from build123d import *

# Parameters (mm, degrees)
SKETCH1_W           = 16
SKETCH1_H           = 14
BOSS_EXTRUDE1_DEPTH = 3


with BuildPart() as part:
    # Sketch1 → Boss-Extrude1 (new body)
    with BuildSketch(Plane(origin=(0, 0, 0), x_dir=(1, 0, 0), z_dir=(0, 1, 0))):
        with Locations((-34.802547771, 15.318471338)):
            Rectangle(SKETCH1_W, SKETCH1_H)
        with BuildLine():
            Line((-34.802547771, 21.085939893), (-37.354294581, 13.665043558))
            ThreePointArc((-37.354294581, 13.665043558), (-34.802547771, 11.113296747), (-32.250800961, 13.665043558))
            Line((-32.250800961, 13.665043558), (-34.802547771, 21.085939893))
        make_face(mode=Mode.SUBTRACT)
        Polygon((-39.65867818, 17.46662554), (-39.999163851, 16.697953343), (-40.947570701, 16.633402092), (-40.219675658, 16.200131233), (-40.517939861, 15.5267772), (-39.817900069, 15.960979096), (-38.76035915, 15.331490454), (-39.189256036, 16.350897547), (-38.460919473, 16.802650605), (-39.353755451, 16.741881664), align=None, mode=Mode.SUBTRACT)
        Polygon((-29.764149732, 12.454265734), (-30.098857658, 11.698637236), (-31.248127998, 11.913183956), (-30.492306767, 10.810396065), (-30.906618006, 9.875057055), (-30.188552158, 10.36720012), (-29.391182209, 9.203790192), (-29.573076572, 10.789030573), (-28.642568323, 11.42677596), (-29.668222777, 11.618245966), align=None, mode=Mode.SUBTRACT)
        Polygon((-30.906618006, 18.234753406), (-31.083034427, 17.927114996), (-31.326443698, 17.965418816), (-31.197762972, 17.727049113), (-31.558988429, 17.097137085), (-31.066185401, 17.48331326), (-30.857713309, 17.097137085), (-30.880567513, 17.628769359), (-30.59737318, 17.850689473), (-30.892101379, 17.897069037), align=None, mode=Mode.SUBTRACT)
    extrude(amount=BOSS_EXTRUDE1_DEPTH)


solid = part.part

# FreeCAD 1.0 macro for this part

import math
import FreeCAD as App
import Part
import Sketcher

V = App.Vector

doc = App.newDocument("Part")
body = doc.addObject("PartDesign::Body", "Body")

sketch1 = body.newObject("Sketcher::SketchObject", "Sketch")
sketch1.AttachmentSupport = (doc.getObject("XZ_Plane"), [""])
sketch1.MapMode = "FlatFace"
sketch1.addGeometry(Part.LineSegment(V(-42.8, -22.32, 0), V(-42.8, -8.32, 0)), False)
sketch1.addGeometry(Part.LineSegment(V(-42.8, -8.32, 0), V(-26.8, -8.32, 0)), False)
sketch1.addGeometry(Part.LineSegment(V(-26.8, -8.32, 0), V(-26.8, -22.32, 0)), False)
sketch1.addGeometry(Part.LineSegment(V(-26.8, -22.32, 0), V(-42.8, -22.32, 0)), False)
sketch1.addGeometry(Part.LineSegment(V(-30.1, -11.7, 0), V(-29.76, -12.45, 0)), False)
sketch1.addGeometry(Part.LineSegment(V(-29.76, -12.45, 0), V(-29.67, -11.62, 0)), False)
sketch1.addGeometry(Part.LineSegment(V(-29.67, -11.62, 0), V(-28.64, -11.43, 0)), False)
sketch1.addGeometry(Part.LineSegment(V(-28.64, -11.43, 0), V(-29.57, -10.79, 0)), False)
sketch1.addGeometry(Part.LineSegment(V(-29.57, -10.79, 0), V(-29.39, -9.2, 0)), False)
sketch1.addGeometry(Part.LineSegment(V(-29.39, -9.2, 0), V(-30.19, -10.37, 0)), False)
sketch1.addGeometry(Part.LineSegment(V(-30.19, -10.37, 0), V(-30.91, -9.88, 0)), False)
sketch1.addGeometry(Part.LineSegment(V(-30.91, -9.88, 0), V(-30.49, -10.81, 0)), False)
sketch1.addGeometry(Part.LineSegment(V(-30.49, -10.81, 0), V(-31.25, -11.91, 0)), False)
sketch1.addGeometry(Part.LineSegment(V(-31.25, -11.91, 0), V(-30.1, -11.7, 0)), False)
sketch1.addGeometry(Part.LineSegment(V(-40, -16.7, 0), V(-39.66, -17.47, 0)), False)
sketch1.addGeometry(Part.LineSegment(V(-39.66, -17.47, 0), V(-39.35, -16.74, 0)), False)
sketch1.addGeometry(Part.LineSegment(V(-39.35, -16.74, 0), V(-38.46, -16.8, 0)), False)
sketch1.addGeometry(Part.LineSegment(V(-38.46, -16.8, 0), V(-39.19, -16.35, 0)), False)
sketch1.addGeometry(Part.LineSegment(V(-39.19, -16.35, 0), V(-38.76, -15.33, 0)), False)
sketch1.addGeometry(Part.LineSegment(V(-38.76, -15.33, 0), V(-39.82, -15.96, 0)), False)
sketch1.addGeometry(Part.LineSegment(V(-39.82, -15.96, 0), V(-40.52, -15.53, 0)), False)
sketch1.addGeometry(Part.LineSegment(V(-40.52, -15.53, 0), V(-40.22, -16.2, 0)), False)
sketch1.addGeometry(Part.LineSegment(V(-40.22, -16.2, 0), V(-40.95, -16.63, 0)), False)
sketch1.addGeometry(Part.LineSegment(V(-40.95, -16.63, 0), V(-40, -16.7, 0)), False)
sketch1.addGeometry(Part.LineSegment(V(-37.35, -13.67, 0), V(-34.8, -21.09, 0)), False)
sketch1.addGeometry(Part.LineSegment(V(-34.8, -21.09, 0), V(-32.25, -13.67, 0)), False)
sketch1.addGeometry(Part.ArcOfCircle(Part.Circle(V(-34.8, -13.67, 0), V(0, 0, 1), 2.55), math.radians(0), math.radians(180)), False)
sketch1.addGeometry(Part.LineSegment(V(-31.08, -17.93, 0), V(-30.91, -18.23, 0)), False)
sketch1.addGeometry(Part.LineSegment(V(-30.91, -18.23, 0), V(-30.89, -17.9, 0)), False)
sketch1.addGeometry(Part.LineSegment(V(-30.89, -17.9, 0), V(-30.6, -17.85, 0)), False)
sketch1.addGeometry(Part.LineSegment(V(-30.6, -17.85, 0), V(-30.88, -17.63, 0)), False)
sketch1.addGeometry(Part.LineSegment(V(-30.88, -17.63, 0), V(-30.86, -17.1, 0)), False)
sketch1.addGeometry(Part.LineSegment(V(-30.86, -17.1, 0), V(-31.07, -17.48, 0)), False)
sketch1.addGeometry(Part.LineSegment(V(-31.07, -17.48, 0), V(-31.56, -17.1, 0)), False)
sketch1.addGeometry(Part.LineSegment(V(-31.56, -17.1, 0), V(-31.2, -17.73, 0)), False)
sketch1.addGeometry(Part.LineSegment(V(-31.2, -17.73, 0), V(-31.33, -17.97, 0)), False)
sketch1.addGeometry(Part.LineSegment(V(-31.33, -17.97, 0), V(-31.08, -17.93, 0)), False)
sketch1.addConstraint(Sketcher.Constraint("Coincident", 0, 2, 1, 1))
sketch1.addConstraint(Sketcher.Constraint("Coincident", 1, 2, 2, 1))
sketch1.addConstraint(Sketcher.Constraint("Coincident", 2, 2, 3, 1))
sketch1.addConstraint(Sketcher.Constraint("Coincident", 3, 2, 0, 1))
sketch1.addConstraint(Sketcher.Constraint("Coincident", 4, 2, 5, 1))
sketch1.addConstraint(Sketcher.Constraint("Coincident", 5, 2, 6, 1))
sketch1.addConstraint(Sketcher.Constraint("Coincident", 6, 2, 7, 1))
sketch1.addConstraint(Sketcher.Constraint("Coincident", 7, 2, 8, 1))
sketch1.addConstraint(Sketcher.Constraint("Coincident", 8, 2, 9, 1))
sketch1.addConstraint(Sketcher.Constraint("Coincident", 9, 2, 10, 1))
sketch1.addConstraint(Sketcher.Constraint("Coincident", 10, 2, 11, 1))
sketch1.addConstraint(Sketcher.Constraint("Coincident", 11, 2, 12, 1))
sketch1.addConstraint(Sketcher.Constraint("Coincident", 12, 2, 13, 1))
sketch1.addConstraint(Sketcher.Constraint("Coincident", 13, 2, 4, 1))
sketch1.addConstraint(Sketcher.Constraint("Coincident", 14, 2, 15, 1))
sketch1.addConstraint(Sketcher.Constraint("Coincident", 15, 2, 16, 1))
sketch1.addConstraint(Sketcher.Constraint("Coincident", 16, 2, 17, 1))
sketch1.addConstraint(Sketcher.Constraint("Coincident", 17, 2, 18, 1))
sketch1.addConstraint(Sketcher.Constraint("Coincident", 18, 2, 19, 1))
sketch1.addConstraint(Sketcher.Constraint("Coincident", 19, 2, 20, 1))
sketch1.addConstraint(Sketcher.Constraint("Coincident", 20, 2, 21, 1))
sketch1.addConstraint(Sketcher.Constraint("Coincident", 21, 2, 22, 1))
sketch1.addConstraint(Sketcher.Constraint("Coincident", 22, 2, 23, 1))
sketch1.addConstraint(Sketcher.Constraint("Coincident", 23, 2, 14, 1))
sketch1.addConstraint(Sketcher.Constraint("Coincident", 24, 2, 25, 1))
sketch1.addConstraint(Sketcher.Constraint("Coincident", 25, 2, 26, 1))
sketch1.addConstraint(Sketcher.Constraint("Coincident", 26, 2, 24, 1))
sketch1.addConstraint(Sketcher.Constraint("Coincident", 27, 2, 28, 1))
sketch1.addConstraint(Sketcher.Constraint("Coincident", 28, 2, 29, 1))
sketch1.addConstraint(Sketcher.Constraint("Coincident", 29, 2, 30, 1))
sketch1.addConstraint(Sketcher.Constraint("Coincident", 30, 2, 31, 1))
sketch1.addConstraint(Sketcher.Constraint("Coincident", 31, 2, 32, 1))
sketch1.addConstraint(Sketcher.Constraint("Coincident", 32, 2, 33, 1))
sketch1.addConstraint(Sketcher.Constraint("Coincident", 33, 2, 34, 1))
sketch1.addConstraint(Sketcher.Constraint("Coincident", 34, 2, 35, 1))
sketch1.addConstraint(Sketcher.Constraint("Coincident", 35, 2, 36, 1))
sketch1.addConstraint(Sketcher.Constraint("Coincident", 36, 2, 27, 1))
sketch1.addConstraint(Sketcher.Constraint("Vertical", 0))
sketch1.addConstraint(Sketcher.Constraint("Horizontal", 1))
sketch1.addConstraint(Sketcher.Constraint("Vertical", 2))
sketch1.addConstraint(Sketcher.Constraint("Horizontal", 3))
sketch1.addConstraint(Sketcher.Constraint("Parallel", 5, 8))
sketch1.addConstraint(Sketcher.Constraint("Perpendicular", 7, 9))
sketch1.addConstraint(Sketcher.Constraint("Perpendicular", 9, 10))
sketch1.addConstraint(Sketcher.Constraint("Parallel", 4, 11))
sketch1.addConstraint(Sketcher.Constraint("Perpendicular", 10, 12))
sketch1.addConstraint(Sketcher.Constraint("Parallel", 6, 13))
sketch1.addConstraint(Sketcher.Constraint("Parallel", 11, 14))
sketch1.addConstraint(Sketcher.Constraint("Parallel", 15, 18))
sketch1.addConstraint(Sketcher.Constraint("Parallel", 17, 20))
sketch1.addConstraint(Sketcher.Constraint("Parallel", 14, 21))
sketch1.addConstraint(Sketcher.Constraint("Parallel", 19, 22))
sketch1.addConstraint(Sketcher.Constraint("Parallel", 16, 23))
sketch1.addConstraint(Sketcher.Constraint("Parallel", 28, 31))
sketch1.addConstraint(Sketcher.Constraint("Parallel", 30, 33))
sketch1.addConstraint(Sketcher.Constraint("Parallel", 27, 34))
sketch1.addConstraint(Sketcher.Constraint("Parallel", 32, 35))
sketch1.addConstraint(Sketcher.Constraint("Parallel", 29, 36))
sketch1.addConstraint(Sketcher.Constraint("Horizontal", 26, 3, 25, 2))
sketch1.addConstraint(Sketcher.Constraint("Horizontal", 25, 2, 26, 2))
sketch1.addConstraint(Sketcher.Constraint("Horizontal", 31, 2, 33, 2))
sketch1.addConstraint(Sketcher.Constraint("Vertical", 26, 3, 24, 2))
sketch1.addConstraint(Sketcher.Constraint("Vertical", 10, 2, 27, 2))
sketch1.addConstraint(Sketcher.Constraint("DistanceX", 1, 1, 1, 2, 16.0))
sketch1.addConstraint(Sketcher.Constraint("DistanceY", 0, 1, 0, 2, 14.0))
sketch1.addConstraint(Sketcher.Constraint("DistanceX", 0, 2, 26, 3, 8.0))
sketch1.addConstraint(Sketcher.Constraint("Radius", 26, 2.551747))
sketch1.addConstraint(Sketcher.Constraint("Distance", 16, 0.894902))
sketch1.addConstraint(Sketcher.Constraint("Distance", 23, 0.950601))
sketch1.addConstraint(Sketcher.Constraint("DistanceY", 9, 2, -1, 1, 10.3672))
sketch1.addConstraint(Sketcher.Constraint("DistanceX", 19, 2, -1, 1, 39.8179))
sketch1.addConstraint(Sketcher.Constraint("DistanceX", 25, 2, -1, 1, 32.250801))
sketch1.addConstraint(Sketcher.Constraint("DistanceX", 28, 2, -1, 1, 30.892101))
sketch1.addConstraint(Sketcher.Constraint("DistanceX", 4, 2, 1, 2, 2.961602))
sketch1.addConstraint(Sketcher.Constraint("DistanceX", 15, 2, 17, 2, 0.164499))
sketch1.addConstraint(Sketcher.Constraint("DistanceY", 19, 2, 20, 2, 0.434202))
sketch1.addConstraint(Sketcher.Constraint("DistanceY", 28, 2, 30, 2, 0.2683))
sketch1.addConstraint(Sketcher.Constraint("Distance", 4, 0.82644))
sketch1.addConstraint(Sketcher.Constraint("Distance", 7, 1.12808))
sketch1.addConstraint(Sketcher.Constraint("Distance", 8, 1.595642))
sketch1.addConstraint(Sketcher.Constraint("Distance", 10, 0.870531))
sketch1.addConstraint(Sketcher.Constraint("Distance", 12, 1.336939))
sketch1.addConstraint(Sketcher.Constraint("Distance", 17, 0.857062))
sketch1.addConstraint(Sketcher.Constraint("Distance", 18, 1.105958))
sketch1.addConstraint(Sketcher.Constraint("Distance", 19, 1.230711))
sketch1.addConstraint(Sketcher.Constraint("Distance", 30, 0.359788))
sketch1.addConstraint(Sketcher.Constraint("Distance", 33, 0.626089))
sketch1.addConstraint(Sketcher.Constraint("DistanceY", 0, 2, -1, 1, 8.318471))
sketch1.addConstraint(Sketcher.Constraint("DistanceX", 6, 2, -1, 1, 28.642568))
sketch1.addConstraint(Sketcher.Constraint("DistanceY", 7, 2, -1, 1, 10.789031))
sketch1.addConstraint(Sketcher.Constraint("DistanceY", 8, 2, -1, 1, 9.20379))
sketch1.addConstraint(Sketcher.Constraint("DistanceX", 10, 2, -1, 1, 30.906618))
sketch1.addConstraint(Sketcher.Constraint("DistanceX", 14, 2, -1, 1, 39.658678))
sketch1.addConstraint(Sketcher.Constraint("DistanceY", 15, 2, -1, 1, 16.741882))
sketch1.addConstraint(Sketcher.Constraint("DistanceX", 16, 2, -1, 1, 38.460919))
sketch1.addConstraint(Sketcher.Constraint("DistanceY", 16, 2, -1, 1, 16.802651))
sketch1.addConstraint(Sketcher.Constraint("DistanceX", 18, 2, -1, 1, 38.760359))
sketch1.addConstraint(Sketcher.Constraint("DistanceY", 21, 2, -1, 1, 16.200131))
sketch1.addConstraint(Sketcher.Constraint("DistanceX", 22, 2, -1, 1, 40.947571))
sketch1.addConstraint(Sketcher.Constraint("DistanceY", 24, 2, -1, 1, 21.08594))
sketch1.addConstraint(Sketcher.Constraint("DistanceY", 28, 2, -1, 1, 17.897069))
sketch1.addConstraint(Sketcher.Constraint("DistanceY", 29, 2, -1, 1, 17.850689))
sketch1.addConstraint(Sketcher.Constraint("DistanceX", 33, 2, -1, 1, 31.558988))
sketch1.addConstraint(Sketcher.Constraint("DistanceY", 34, 2, -1, 1, 17.727049))
sketch1.addConstraint(Sketcher.Constraint("DistanceY", 35, 2, -1, 1, 17.965419))
sketch1.addConstraint(Sketcher.Constraint("DistanceY", 4, 2, 5, 2, 0.83602))
sketch1.addConstraint(Sketcher.Constraint("DistanceY", 5, 2, 6, 2, 0.19147))
sketch1.addConstraint(Sketcher.Constraint("DistanceY", 14, 2, 26, 3, 3.801582))
sketch1.addConstraint(Sketcher.Constraint("DistanceY", 27, 2, 25, 2, 4.56971))
sketch1.addConstraint(Sketcher.Constraint("DistanceX", 28, 2, 29, 2, 0.294728))
sketch1.addConstraint(Sketcher.Constraint("DistanceX", 31, 2, 29, 2, 0.26034))
sketch1.addConstraint(Sketcher.Constraint("DistanceX", 34, 2, 28, 2, 0.305662))
pad1 = body.newObject("PartDesign::Pad", "Pad")
pad1.Profile = sketch1
pad1.Length = 3
pad1.Reversed = True

doc.recompute()
